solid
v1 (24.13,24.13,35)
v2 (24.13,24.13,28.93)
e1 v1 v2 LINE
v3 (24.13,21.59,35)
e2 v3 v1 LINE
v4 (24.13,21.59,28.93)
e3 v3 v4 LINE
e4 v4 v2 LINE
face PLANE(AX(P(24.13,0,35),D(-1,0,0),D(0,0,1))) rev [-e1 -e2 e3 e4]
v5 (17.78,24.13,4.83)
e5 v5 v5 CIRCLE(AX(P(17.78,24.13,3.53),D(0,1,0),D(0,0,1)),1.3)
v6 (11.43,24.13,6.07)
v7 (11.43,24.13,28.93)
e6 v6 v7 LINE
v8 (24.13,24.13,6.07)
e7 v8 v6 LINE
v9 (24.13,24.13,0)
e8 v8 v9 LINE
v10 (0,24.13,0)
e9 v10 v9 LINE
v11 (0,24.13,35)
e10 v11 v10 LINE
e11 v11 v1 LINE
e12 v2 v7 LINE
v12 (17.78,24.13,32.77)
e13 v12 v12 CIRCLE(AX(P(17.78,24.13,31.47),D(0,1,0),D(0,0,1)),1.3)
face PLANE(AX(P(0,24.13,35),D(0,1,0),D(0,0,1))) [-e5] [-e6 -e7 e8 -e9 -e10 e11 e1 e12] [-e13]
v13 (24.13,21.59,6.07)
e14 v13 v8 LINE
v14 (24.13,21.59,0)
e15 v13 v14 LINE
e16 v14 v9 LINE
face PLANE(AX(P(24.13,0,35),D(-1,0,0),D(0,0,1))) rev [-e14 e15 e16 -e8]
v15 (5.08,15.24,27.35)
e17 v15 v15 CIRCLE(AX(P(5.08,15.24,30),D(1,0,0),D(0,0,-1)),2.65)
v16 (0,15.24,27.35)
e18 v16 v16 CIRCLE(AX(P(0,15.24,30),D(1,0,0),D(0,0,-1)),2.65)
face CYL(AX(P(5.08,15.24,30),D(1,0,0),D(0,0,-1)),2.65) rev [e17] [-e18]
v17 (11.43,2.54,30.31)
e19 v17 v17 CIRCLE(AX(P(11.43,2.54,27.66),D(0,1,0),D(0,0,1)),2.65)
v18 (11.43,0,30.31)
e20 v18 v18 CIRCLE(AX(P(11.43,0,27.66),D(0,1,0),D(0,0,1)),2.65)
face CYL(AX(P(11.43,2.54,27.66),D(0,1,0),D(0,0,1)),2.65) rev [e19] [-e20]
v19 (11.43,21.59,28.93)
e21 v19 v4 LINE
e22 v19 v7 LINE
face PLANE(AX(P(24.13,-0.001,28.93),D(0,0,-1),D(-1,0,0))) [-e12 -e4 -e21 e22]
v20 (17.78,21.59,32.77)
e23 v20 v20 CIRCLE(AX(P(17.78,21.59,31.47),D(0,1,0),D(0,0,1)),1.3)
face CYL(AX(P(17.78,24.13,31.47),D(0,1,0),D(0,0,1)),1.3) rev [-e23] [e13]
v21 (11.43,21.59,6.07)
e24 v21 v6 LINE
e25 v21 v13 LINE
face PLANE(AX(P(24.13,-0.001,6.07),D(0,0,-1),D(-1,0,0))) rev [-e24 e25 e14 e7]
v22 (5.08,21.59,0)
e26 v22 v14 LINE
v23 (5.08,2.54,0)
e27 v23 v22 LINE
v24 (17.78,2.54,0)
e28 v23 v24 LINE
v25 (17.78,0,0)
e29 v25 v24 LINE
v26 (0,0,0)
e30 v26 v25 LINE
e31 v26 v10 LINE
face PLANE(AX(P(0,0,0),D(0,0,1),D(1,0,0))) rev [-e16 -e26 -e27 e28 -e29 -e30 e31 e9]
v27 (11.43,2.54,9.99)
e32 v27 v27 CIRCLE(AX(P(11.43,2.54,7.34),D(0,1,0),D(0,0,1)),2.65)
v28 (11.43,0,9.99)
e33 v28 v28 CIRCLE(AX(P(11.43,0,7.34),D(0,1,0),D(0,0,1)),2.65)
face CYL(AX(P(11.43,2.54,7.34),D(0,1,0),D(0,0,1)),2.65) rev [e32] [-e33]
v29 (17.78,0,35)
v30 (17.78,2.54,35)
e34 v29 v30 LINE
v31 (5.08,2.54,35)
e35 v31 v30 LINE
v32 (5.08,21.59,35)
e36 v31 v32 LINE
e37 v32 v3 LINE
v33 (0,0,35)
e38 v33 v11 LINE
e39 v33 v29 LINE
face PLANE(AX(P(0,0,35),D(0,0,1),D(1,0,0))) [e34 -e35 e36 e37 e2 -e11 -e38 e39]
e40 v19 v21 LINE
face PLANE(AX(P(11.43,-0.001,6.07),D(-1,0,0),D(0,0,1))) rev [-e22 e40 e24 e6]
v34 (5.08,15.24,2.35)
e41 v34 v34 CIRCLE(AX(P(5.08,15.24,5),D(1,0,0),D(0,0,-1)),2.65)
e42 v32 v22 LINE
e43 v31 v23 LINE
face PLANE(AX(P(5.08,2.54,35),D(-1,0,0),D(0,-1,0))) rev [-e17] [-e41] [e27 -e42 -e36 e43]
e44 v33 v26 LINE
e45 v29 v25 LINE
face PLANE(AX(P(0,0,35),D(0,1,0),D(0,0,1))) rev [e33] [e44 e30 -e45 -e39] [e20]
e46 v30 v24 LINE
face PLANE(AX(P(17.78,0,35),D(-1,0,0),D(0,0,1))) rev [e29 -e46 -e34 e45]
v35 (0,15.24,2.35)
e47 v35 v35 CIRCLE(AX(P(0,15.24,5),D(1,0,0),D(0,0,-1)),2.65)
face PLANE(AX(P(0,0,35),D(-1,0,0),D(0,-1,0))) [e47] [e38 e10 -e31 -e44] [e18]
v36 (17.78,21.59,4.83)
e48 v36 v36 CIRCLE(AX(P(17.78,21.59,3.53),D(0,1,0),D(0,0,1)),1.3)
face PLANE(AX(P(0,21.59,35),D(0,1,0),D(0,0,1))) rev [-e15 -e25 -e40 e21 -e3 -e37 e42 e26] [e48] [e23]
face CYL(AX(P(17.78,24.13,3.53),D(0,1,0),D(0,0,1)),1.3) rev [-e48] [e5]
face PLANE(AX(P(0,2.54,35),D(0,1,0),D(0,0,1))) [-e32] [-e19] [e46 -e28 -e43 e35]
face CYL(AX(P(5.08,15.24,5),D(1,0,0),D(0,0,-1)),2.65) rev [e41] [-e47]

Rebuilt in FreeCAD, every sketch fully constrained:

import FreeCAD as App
import Part
import Sketcher
from FreeCAD import Vector
Q = App.Units.Quantity

doc = App.newDocument("Part")
body = doc.addObject("PartDesign::Body", "Body")

# Sketch on XY plane
sketch1 = doc.addObject("Sketcher::SketchObject", "Sketch")
body.addObject(sketch1)
sketch1.AttachmentSupport = (doc.XY_Plane, [""])
sketch1.MapMode = "FlatFace"
sketch1.addGeometry([
    Part.LineSegment(Vector(0, 0, 0), Vector(17.8, 0, 0)),  # 0
    Part.LineSegment(Vector(17.8, 0, 0), Vector(17.8, 2.5, 0)),  # 1
    Part.LineSegment(Vector(17.8, 2.5, 0), Vector(5.1, 2.5, 0)),  # 2
    Part.LineSegment(Vector(5.1, 2.5, 0), Vector(5.1, 21.6, 0)),  # 3
    Part.LineSegment(Vector(5.1, 21.6, 0), Vector(24.1, 21.6, 0)),  # 4
    Part.LineSegment(Vector(24.1, 21.6, 0), Vector(24.1, 24.1, 0)),  # 5
    Part.LineSegment(Vector(24.1, 24.1, 0), Vector(0, 24.1, 0)),  # 6
    Part.LineSegment(Vector(0, 24.1, 0), Vector(0, 0, 0)),  # 7
], False)
sketch1.addConstraint([
    Sketcher.Constraint("Coincident", 0, 2, 1, 1),
    Sketcher.Constraint("Coincident", 1, 2, 2, 1),
    Sketcher.Constraint("Coincident", 2, 2, 3, 1),
    Sketcher.Constraint("Coincident", 3, 2, 4, 1),
    Sketcher.Constraint("Coincident", 4, 2, 5, 1),
    Sketcher.Constraint("Coincident", 5, 2, 6, 1),
    Sketcher.Constraint("Coincident", 6, 2, 7, 1),
    Sketcher.Constraint("Coincident", 7, 2, 0, 1),
    Sketcher.Constraint("Horizontal", 0),
    Sketcher.Constraint("Vertical", 1),
    Sketcher.Constraint("Horizontal", 2),
    Sketcher.Constraint("Vertical", 3),
    Sketcher.Constraint("Horizontal", 4),
    Sketcher.Constraint("Vertical", 5),
    Sketcher.Constraint("Horizontal", 6),
    Sketcher.Constraint("Vertical", 7),
    Sketcher.Constraint("Coincident", 7, 2, -1, 1),
    Sketcher.Constraint("Equal", 4, 3),
    Sketcher.Constraint("Equal", 1, 5),
    Sketcher.Constraint("Equal", 6, 7),
    Sketcher.Constraint("DistanceX", 0, 1, 0, 2, Q("0.7 in")),
    Sketcher.Constraint("DistanceX", 2, 2, 2, 1, Q("0.5 in")),
    Sketcher.Constraint("DistanceX", 4, 1, 4, 2, Q("0.75 in")),
])
pad1 = doc.addObject("PartDesign::Pad", "Pad")
body.addObject(pad1)
pad1.Profile = sketch1
pad1.Length = 35

# Sketch on YZ plane
sketch2 = doc.addObject("Sketcher::SketchObject", "Sketch001")
body.addObject(sketch2)
sketch2.AttachmentSupport = (doc.YZ_Plane, [""])
sketch2.MapMode = "FlatFace"
sketch2.AttachmentOffset = App.Placement(Vector(0, 0, 0.2 * 25.4), App.Rotation())
sketch2.addGeometry([
    Part.Circle(Vector(15.2, 30, 0), Vector(0, 0, 1), 2.6),
    Part.Circle(Vector(15.2, 5, 0), Vector(0, 0, 1), 2.6),
], False)
sketch2.addConstraint([
    Sketcher.Constraint("Equal", 0, 1),
    Sketcher.Constraint("Vertical", 0, 3, 1, 3),
    Sketcher.Constraint("DistanceX", -1, 1, 0, 3, Q("0.6 in")),
    Sketcher.Constraint("Diameter", 0, 5.3),
    Sketcher.Constraint("DistanceY", -1, 1, 0, 3, 30.0),
    Sketcher.Constraint("DistanceY", -1, 1, 1, 3, 5.0),
])
doc.recompute()
hole = doc.addObject("PartDesign::Hole", "Hole")
body.addObject(hole)
hole.Profile = sketch2
hole.ThreadType = "None"
hole.Diameter = 5.3
hole.DepthType = "ThroughAll"

# Sketch on XZ plane
sketch3 = doc.addObject("Sketcher::SketchObject", "Sketch002")
body.addObject(sketch3)
sketch3.AttachmentSupport = (doc.XZ_Plane, [""])
sketch3.MapMode = "FlatFace"
sketch3.AttachmentOffset = App.Placement(Vector(0, 0, -0.1 * 25.4), App.Rotation())
sketch3.addGeometry([
    Part.Circle(Vector(11.4, 27.7, 0), Vector(0, 0, 1), 2.6),
    Part.Circle(Vector(11.4, 7.3, 0), Vector(0, 0, 1), 2.6),
], False)
sketch3.addConstraint([
    Sketcher.Constraint("Equal", 0, 1),
    Sketcher.Constraint("Vertical", 0, 3, 1, 3),
    Sketcher.Constraint("DistanceY", 1, 3, 0, 3, Q("0.8 in")),
    Sketcher.Constraint("Diameter", 0, 5.3),
    Sketcher.Constraint("DistanceX", -1, 1, 0, 3, Q("0.45 in")),
    Sketcher.Constraint("DistanceY", -1, 1, 0, 3, 27.66),
])
doc.recompute()
hole2 = doc.addObject("PartDesign::Hole", "Hole001")
body.addObject(hole2)
hole2.Profile = sketch3
hole2.ThreadType = "None"
hole2.Diameter = 5.3
hole2.DepthType = "Dimension"
hole2.Depth = Q("0.1 in")
hole2.DrillPoint = "Flat"
hole2.Reversed = True

# Sketch on XZ plane
sketch4 = doc.addObject("Sketcher::SketchObject", "Sketch003")
body.addObject(sketch4)
sketch4.AttachmentSupport = (doc.XZ_Plane, [""])
sketch4.MapMode = "FlatFace"
sketch4.AttachmentOffset = App.Placement(Vector(0, 0, -0.95 * 25.4), App.Rotation())
sketch4.addGeometry([
    Part.LineSegment(Vector(11, 6, 0), Vector(11, 29, 0)),
    Part.LineSegment(Vector(11, 29, 0), Vector(24, 29, 0)),
    Part.LineSegment(Vector(24, 29, 0), Vector(24, 6, 0)),
    Part.LineSegment(Vector(24, 6, 0), Vector(11, 6, 0)),
], False)
sketch4.addConstraint([
    Sketcher.Constraint("Coincident", 0, 2, 1, 1),
    Sketcher.Constraint("Coincident", 1, 2, 2, 1),
    Sketcher.Constraint("Coincident", 2, 2, 3, 1),
    Sketcher.Constraint("Coincident", 3, 2, 0, 1),
    Sketcher.Constraint("Vertical", 0),
    Sketcher.Constraint("Horizontal", 1),
    Sketcher.Constraint("Vertical", 2),
    Sketcher.Constraint("Horizontal", 3),
    Sketcher.Constraint("DistanceX", 1, 1, 1, 2, Q("0.5 in")),
    Sketcher.Constraint("DistanceY", 0, 1, 0, 2, Q("0.9 in")),
    Sketcher.Constraint("DistanceX", -1, 1, 0, 2, Q("0.45 in")),
    Sketcher.Constraint("DistanceY", -1, 1, 0, 2, 28.93),
])
pocket1 = doc.addObject("PartDesign::Pocket", "Pocket")
body.addObject(pocket1)
pocket1.Profile = sketch4
pocket1.Type = "UpToFirst"
pocket1.Reversed = True

# Sketch on XZ plane
sketch5 = doc.addObject("Sketcher::SketchObject", "Sketch004")
body.addObject(sketch5)
sketch5.AttachmentSupport = (doc.XZ_Plane, [""])
sketch5.MapMode = "FlatFace"
sketch5.AttachmentOffset = App.Placement(Vector(0, 0, -0.95 * 25.4), App.Rotation())
sketch5.addGeometry([
    Part.Circle(Vector(17.8, 31.5, 0), Vector(0, 0, 1), 1.3),
    Part.Circle(Vector(17.8, 3.5, 0), Vector(0, 0, 1), 1.3),
], False)
sketch5.addConstraint([
    Sketcher.Constraint("Equal", 0, 1),
    Sketcher.Constraint("Vertical", 0, 3, 1, 3),
    Sketcher.Constraint("DistanceX", -1, 1, 0, 3, Q("0.7 in")),
    Sketcher.Constraint("DistanceY", 1, 3, 0, 3, Q("1.1 in")),
    Sketcher.Constraint("Diameter", 0, 2.6),
    Sketcher.Constraint("DistanceY", -1, 1, 0, 3, 31.47),
])
doc.recompute()
hole3 = doc.addObject("PartDesign::Hole", "Hole002")
body.addObject(hole3)
hole3.Profile = sketch5
hole3.ThreadType = "None"
hole3.Diameter = 2.6
hole3.DepthType = "Dimension"
hole3.Depth = Q("0.1 in")
hole3.DrillPoint = "Flat"
hole3.Reversed = True

doc.recompute()
